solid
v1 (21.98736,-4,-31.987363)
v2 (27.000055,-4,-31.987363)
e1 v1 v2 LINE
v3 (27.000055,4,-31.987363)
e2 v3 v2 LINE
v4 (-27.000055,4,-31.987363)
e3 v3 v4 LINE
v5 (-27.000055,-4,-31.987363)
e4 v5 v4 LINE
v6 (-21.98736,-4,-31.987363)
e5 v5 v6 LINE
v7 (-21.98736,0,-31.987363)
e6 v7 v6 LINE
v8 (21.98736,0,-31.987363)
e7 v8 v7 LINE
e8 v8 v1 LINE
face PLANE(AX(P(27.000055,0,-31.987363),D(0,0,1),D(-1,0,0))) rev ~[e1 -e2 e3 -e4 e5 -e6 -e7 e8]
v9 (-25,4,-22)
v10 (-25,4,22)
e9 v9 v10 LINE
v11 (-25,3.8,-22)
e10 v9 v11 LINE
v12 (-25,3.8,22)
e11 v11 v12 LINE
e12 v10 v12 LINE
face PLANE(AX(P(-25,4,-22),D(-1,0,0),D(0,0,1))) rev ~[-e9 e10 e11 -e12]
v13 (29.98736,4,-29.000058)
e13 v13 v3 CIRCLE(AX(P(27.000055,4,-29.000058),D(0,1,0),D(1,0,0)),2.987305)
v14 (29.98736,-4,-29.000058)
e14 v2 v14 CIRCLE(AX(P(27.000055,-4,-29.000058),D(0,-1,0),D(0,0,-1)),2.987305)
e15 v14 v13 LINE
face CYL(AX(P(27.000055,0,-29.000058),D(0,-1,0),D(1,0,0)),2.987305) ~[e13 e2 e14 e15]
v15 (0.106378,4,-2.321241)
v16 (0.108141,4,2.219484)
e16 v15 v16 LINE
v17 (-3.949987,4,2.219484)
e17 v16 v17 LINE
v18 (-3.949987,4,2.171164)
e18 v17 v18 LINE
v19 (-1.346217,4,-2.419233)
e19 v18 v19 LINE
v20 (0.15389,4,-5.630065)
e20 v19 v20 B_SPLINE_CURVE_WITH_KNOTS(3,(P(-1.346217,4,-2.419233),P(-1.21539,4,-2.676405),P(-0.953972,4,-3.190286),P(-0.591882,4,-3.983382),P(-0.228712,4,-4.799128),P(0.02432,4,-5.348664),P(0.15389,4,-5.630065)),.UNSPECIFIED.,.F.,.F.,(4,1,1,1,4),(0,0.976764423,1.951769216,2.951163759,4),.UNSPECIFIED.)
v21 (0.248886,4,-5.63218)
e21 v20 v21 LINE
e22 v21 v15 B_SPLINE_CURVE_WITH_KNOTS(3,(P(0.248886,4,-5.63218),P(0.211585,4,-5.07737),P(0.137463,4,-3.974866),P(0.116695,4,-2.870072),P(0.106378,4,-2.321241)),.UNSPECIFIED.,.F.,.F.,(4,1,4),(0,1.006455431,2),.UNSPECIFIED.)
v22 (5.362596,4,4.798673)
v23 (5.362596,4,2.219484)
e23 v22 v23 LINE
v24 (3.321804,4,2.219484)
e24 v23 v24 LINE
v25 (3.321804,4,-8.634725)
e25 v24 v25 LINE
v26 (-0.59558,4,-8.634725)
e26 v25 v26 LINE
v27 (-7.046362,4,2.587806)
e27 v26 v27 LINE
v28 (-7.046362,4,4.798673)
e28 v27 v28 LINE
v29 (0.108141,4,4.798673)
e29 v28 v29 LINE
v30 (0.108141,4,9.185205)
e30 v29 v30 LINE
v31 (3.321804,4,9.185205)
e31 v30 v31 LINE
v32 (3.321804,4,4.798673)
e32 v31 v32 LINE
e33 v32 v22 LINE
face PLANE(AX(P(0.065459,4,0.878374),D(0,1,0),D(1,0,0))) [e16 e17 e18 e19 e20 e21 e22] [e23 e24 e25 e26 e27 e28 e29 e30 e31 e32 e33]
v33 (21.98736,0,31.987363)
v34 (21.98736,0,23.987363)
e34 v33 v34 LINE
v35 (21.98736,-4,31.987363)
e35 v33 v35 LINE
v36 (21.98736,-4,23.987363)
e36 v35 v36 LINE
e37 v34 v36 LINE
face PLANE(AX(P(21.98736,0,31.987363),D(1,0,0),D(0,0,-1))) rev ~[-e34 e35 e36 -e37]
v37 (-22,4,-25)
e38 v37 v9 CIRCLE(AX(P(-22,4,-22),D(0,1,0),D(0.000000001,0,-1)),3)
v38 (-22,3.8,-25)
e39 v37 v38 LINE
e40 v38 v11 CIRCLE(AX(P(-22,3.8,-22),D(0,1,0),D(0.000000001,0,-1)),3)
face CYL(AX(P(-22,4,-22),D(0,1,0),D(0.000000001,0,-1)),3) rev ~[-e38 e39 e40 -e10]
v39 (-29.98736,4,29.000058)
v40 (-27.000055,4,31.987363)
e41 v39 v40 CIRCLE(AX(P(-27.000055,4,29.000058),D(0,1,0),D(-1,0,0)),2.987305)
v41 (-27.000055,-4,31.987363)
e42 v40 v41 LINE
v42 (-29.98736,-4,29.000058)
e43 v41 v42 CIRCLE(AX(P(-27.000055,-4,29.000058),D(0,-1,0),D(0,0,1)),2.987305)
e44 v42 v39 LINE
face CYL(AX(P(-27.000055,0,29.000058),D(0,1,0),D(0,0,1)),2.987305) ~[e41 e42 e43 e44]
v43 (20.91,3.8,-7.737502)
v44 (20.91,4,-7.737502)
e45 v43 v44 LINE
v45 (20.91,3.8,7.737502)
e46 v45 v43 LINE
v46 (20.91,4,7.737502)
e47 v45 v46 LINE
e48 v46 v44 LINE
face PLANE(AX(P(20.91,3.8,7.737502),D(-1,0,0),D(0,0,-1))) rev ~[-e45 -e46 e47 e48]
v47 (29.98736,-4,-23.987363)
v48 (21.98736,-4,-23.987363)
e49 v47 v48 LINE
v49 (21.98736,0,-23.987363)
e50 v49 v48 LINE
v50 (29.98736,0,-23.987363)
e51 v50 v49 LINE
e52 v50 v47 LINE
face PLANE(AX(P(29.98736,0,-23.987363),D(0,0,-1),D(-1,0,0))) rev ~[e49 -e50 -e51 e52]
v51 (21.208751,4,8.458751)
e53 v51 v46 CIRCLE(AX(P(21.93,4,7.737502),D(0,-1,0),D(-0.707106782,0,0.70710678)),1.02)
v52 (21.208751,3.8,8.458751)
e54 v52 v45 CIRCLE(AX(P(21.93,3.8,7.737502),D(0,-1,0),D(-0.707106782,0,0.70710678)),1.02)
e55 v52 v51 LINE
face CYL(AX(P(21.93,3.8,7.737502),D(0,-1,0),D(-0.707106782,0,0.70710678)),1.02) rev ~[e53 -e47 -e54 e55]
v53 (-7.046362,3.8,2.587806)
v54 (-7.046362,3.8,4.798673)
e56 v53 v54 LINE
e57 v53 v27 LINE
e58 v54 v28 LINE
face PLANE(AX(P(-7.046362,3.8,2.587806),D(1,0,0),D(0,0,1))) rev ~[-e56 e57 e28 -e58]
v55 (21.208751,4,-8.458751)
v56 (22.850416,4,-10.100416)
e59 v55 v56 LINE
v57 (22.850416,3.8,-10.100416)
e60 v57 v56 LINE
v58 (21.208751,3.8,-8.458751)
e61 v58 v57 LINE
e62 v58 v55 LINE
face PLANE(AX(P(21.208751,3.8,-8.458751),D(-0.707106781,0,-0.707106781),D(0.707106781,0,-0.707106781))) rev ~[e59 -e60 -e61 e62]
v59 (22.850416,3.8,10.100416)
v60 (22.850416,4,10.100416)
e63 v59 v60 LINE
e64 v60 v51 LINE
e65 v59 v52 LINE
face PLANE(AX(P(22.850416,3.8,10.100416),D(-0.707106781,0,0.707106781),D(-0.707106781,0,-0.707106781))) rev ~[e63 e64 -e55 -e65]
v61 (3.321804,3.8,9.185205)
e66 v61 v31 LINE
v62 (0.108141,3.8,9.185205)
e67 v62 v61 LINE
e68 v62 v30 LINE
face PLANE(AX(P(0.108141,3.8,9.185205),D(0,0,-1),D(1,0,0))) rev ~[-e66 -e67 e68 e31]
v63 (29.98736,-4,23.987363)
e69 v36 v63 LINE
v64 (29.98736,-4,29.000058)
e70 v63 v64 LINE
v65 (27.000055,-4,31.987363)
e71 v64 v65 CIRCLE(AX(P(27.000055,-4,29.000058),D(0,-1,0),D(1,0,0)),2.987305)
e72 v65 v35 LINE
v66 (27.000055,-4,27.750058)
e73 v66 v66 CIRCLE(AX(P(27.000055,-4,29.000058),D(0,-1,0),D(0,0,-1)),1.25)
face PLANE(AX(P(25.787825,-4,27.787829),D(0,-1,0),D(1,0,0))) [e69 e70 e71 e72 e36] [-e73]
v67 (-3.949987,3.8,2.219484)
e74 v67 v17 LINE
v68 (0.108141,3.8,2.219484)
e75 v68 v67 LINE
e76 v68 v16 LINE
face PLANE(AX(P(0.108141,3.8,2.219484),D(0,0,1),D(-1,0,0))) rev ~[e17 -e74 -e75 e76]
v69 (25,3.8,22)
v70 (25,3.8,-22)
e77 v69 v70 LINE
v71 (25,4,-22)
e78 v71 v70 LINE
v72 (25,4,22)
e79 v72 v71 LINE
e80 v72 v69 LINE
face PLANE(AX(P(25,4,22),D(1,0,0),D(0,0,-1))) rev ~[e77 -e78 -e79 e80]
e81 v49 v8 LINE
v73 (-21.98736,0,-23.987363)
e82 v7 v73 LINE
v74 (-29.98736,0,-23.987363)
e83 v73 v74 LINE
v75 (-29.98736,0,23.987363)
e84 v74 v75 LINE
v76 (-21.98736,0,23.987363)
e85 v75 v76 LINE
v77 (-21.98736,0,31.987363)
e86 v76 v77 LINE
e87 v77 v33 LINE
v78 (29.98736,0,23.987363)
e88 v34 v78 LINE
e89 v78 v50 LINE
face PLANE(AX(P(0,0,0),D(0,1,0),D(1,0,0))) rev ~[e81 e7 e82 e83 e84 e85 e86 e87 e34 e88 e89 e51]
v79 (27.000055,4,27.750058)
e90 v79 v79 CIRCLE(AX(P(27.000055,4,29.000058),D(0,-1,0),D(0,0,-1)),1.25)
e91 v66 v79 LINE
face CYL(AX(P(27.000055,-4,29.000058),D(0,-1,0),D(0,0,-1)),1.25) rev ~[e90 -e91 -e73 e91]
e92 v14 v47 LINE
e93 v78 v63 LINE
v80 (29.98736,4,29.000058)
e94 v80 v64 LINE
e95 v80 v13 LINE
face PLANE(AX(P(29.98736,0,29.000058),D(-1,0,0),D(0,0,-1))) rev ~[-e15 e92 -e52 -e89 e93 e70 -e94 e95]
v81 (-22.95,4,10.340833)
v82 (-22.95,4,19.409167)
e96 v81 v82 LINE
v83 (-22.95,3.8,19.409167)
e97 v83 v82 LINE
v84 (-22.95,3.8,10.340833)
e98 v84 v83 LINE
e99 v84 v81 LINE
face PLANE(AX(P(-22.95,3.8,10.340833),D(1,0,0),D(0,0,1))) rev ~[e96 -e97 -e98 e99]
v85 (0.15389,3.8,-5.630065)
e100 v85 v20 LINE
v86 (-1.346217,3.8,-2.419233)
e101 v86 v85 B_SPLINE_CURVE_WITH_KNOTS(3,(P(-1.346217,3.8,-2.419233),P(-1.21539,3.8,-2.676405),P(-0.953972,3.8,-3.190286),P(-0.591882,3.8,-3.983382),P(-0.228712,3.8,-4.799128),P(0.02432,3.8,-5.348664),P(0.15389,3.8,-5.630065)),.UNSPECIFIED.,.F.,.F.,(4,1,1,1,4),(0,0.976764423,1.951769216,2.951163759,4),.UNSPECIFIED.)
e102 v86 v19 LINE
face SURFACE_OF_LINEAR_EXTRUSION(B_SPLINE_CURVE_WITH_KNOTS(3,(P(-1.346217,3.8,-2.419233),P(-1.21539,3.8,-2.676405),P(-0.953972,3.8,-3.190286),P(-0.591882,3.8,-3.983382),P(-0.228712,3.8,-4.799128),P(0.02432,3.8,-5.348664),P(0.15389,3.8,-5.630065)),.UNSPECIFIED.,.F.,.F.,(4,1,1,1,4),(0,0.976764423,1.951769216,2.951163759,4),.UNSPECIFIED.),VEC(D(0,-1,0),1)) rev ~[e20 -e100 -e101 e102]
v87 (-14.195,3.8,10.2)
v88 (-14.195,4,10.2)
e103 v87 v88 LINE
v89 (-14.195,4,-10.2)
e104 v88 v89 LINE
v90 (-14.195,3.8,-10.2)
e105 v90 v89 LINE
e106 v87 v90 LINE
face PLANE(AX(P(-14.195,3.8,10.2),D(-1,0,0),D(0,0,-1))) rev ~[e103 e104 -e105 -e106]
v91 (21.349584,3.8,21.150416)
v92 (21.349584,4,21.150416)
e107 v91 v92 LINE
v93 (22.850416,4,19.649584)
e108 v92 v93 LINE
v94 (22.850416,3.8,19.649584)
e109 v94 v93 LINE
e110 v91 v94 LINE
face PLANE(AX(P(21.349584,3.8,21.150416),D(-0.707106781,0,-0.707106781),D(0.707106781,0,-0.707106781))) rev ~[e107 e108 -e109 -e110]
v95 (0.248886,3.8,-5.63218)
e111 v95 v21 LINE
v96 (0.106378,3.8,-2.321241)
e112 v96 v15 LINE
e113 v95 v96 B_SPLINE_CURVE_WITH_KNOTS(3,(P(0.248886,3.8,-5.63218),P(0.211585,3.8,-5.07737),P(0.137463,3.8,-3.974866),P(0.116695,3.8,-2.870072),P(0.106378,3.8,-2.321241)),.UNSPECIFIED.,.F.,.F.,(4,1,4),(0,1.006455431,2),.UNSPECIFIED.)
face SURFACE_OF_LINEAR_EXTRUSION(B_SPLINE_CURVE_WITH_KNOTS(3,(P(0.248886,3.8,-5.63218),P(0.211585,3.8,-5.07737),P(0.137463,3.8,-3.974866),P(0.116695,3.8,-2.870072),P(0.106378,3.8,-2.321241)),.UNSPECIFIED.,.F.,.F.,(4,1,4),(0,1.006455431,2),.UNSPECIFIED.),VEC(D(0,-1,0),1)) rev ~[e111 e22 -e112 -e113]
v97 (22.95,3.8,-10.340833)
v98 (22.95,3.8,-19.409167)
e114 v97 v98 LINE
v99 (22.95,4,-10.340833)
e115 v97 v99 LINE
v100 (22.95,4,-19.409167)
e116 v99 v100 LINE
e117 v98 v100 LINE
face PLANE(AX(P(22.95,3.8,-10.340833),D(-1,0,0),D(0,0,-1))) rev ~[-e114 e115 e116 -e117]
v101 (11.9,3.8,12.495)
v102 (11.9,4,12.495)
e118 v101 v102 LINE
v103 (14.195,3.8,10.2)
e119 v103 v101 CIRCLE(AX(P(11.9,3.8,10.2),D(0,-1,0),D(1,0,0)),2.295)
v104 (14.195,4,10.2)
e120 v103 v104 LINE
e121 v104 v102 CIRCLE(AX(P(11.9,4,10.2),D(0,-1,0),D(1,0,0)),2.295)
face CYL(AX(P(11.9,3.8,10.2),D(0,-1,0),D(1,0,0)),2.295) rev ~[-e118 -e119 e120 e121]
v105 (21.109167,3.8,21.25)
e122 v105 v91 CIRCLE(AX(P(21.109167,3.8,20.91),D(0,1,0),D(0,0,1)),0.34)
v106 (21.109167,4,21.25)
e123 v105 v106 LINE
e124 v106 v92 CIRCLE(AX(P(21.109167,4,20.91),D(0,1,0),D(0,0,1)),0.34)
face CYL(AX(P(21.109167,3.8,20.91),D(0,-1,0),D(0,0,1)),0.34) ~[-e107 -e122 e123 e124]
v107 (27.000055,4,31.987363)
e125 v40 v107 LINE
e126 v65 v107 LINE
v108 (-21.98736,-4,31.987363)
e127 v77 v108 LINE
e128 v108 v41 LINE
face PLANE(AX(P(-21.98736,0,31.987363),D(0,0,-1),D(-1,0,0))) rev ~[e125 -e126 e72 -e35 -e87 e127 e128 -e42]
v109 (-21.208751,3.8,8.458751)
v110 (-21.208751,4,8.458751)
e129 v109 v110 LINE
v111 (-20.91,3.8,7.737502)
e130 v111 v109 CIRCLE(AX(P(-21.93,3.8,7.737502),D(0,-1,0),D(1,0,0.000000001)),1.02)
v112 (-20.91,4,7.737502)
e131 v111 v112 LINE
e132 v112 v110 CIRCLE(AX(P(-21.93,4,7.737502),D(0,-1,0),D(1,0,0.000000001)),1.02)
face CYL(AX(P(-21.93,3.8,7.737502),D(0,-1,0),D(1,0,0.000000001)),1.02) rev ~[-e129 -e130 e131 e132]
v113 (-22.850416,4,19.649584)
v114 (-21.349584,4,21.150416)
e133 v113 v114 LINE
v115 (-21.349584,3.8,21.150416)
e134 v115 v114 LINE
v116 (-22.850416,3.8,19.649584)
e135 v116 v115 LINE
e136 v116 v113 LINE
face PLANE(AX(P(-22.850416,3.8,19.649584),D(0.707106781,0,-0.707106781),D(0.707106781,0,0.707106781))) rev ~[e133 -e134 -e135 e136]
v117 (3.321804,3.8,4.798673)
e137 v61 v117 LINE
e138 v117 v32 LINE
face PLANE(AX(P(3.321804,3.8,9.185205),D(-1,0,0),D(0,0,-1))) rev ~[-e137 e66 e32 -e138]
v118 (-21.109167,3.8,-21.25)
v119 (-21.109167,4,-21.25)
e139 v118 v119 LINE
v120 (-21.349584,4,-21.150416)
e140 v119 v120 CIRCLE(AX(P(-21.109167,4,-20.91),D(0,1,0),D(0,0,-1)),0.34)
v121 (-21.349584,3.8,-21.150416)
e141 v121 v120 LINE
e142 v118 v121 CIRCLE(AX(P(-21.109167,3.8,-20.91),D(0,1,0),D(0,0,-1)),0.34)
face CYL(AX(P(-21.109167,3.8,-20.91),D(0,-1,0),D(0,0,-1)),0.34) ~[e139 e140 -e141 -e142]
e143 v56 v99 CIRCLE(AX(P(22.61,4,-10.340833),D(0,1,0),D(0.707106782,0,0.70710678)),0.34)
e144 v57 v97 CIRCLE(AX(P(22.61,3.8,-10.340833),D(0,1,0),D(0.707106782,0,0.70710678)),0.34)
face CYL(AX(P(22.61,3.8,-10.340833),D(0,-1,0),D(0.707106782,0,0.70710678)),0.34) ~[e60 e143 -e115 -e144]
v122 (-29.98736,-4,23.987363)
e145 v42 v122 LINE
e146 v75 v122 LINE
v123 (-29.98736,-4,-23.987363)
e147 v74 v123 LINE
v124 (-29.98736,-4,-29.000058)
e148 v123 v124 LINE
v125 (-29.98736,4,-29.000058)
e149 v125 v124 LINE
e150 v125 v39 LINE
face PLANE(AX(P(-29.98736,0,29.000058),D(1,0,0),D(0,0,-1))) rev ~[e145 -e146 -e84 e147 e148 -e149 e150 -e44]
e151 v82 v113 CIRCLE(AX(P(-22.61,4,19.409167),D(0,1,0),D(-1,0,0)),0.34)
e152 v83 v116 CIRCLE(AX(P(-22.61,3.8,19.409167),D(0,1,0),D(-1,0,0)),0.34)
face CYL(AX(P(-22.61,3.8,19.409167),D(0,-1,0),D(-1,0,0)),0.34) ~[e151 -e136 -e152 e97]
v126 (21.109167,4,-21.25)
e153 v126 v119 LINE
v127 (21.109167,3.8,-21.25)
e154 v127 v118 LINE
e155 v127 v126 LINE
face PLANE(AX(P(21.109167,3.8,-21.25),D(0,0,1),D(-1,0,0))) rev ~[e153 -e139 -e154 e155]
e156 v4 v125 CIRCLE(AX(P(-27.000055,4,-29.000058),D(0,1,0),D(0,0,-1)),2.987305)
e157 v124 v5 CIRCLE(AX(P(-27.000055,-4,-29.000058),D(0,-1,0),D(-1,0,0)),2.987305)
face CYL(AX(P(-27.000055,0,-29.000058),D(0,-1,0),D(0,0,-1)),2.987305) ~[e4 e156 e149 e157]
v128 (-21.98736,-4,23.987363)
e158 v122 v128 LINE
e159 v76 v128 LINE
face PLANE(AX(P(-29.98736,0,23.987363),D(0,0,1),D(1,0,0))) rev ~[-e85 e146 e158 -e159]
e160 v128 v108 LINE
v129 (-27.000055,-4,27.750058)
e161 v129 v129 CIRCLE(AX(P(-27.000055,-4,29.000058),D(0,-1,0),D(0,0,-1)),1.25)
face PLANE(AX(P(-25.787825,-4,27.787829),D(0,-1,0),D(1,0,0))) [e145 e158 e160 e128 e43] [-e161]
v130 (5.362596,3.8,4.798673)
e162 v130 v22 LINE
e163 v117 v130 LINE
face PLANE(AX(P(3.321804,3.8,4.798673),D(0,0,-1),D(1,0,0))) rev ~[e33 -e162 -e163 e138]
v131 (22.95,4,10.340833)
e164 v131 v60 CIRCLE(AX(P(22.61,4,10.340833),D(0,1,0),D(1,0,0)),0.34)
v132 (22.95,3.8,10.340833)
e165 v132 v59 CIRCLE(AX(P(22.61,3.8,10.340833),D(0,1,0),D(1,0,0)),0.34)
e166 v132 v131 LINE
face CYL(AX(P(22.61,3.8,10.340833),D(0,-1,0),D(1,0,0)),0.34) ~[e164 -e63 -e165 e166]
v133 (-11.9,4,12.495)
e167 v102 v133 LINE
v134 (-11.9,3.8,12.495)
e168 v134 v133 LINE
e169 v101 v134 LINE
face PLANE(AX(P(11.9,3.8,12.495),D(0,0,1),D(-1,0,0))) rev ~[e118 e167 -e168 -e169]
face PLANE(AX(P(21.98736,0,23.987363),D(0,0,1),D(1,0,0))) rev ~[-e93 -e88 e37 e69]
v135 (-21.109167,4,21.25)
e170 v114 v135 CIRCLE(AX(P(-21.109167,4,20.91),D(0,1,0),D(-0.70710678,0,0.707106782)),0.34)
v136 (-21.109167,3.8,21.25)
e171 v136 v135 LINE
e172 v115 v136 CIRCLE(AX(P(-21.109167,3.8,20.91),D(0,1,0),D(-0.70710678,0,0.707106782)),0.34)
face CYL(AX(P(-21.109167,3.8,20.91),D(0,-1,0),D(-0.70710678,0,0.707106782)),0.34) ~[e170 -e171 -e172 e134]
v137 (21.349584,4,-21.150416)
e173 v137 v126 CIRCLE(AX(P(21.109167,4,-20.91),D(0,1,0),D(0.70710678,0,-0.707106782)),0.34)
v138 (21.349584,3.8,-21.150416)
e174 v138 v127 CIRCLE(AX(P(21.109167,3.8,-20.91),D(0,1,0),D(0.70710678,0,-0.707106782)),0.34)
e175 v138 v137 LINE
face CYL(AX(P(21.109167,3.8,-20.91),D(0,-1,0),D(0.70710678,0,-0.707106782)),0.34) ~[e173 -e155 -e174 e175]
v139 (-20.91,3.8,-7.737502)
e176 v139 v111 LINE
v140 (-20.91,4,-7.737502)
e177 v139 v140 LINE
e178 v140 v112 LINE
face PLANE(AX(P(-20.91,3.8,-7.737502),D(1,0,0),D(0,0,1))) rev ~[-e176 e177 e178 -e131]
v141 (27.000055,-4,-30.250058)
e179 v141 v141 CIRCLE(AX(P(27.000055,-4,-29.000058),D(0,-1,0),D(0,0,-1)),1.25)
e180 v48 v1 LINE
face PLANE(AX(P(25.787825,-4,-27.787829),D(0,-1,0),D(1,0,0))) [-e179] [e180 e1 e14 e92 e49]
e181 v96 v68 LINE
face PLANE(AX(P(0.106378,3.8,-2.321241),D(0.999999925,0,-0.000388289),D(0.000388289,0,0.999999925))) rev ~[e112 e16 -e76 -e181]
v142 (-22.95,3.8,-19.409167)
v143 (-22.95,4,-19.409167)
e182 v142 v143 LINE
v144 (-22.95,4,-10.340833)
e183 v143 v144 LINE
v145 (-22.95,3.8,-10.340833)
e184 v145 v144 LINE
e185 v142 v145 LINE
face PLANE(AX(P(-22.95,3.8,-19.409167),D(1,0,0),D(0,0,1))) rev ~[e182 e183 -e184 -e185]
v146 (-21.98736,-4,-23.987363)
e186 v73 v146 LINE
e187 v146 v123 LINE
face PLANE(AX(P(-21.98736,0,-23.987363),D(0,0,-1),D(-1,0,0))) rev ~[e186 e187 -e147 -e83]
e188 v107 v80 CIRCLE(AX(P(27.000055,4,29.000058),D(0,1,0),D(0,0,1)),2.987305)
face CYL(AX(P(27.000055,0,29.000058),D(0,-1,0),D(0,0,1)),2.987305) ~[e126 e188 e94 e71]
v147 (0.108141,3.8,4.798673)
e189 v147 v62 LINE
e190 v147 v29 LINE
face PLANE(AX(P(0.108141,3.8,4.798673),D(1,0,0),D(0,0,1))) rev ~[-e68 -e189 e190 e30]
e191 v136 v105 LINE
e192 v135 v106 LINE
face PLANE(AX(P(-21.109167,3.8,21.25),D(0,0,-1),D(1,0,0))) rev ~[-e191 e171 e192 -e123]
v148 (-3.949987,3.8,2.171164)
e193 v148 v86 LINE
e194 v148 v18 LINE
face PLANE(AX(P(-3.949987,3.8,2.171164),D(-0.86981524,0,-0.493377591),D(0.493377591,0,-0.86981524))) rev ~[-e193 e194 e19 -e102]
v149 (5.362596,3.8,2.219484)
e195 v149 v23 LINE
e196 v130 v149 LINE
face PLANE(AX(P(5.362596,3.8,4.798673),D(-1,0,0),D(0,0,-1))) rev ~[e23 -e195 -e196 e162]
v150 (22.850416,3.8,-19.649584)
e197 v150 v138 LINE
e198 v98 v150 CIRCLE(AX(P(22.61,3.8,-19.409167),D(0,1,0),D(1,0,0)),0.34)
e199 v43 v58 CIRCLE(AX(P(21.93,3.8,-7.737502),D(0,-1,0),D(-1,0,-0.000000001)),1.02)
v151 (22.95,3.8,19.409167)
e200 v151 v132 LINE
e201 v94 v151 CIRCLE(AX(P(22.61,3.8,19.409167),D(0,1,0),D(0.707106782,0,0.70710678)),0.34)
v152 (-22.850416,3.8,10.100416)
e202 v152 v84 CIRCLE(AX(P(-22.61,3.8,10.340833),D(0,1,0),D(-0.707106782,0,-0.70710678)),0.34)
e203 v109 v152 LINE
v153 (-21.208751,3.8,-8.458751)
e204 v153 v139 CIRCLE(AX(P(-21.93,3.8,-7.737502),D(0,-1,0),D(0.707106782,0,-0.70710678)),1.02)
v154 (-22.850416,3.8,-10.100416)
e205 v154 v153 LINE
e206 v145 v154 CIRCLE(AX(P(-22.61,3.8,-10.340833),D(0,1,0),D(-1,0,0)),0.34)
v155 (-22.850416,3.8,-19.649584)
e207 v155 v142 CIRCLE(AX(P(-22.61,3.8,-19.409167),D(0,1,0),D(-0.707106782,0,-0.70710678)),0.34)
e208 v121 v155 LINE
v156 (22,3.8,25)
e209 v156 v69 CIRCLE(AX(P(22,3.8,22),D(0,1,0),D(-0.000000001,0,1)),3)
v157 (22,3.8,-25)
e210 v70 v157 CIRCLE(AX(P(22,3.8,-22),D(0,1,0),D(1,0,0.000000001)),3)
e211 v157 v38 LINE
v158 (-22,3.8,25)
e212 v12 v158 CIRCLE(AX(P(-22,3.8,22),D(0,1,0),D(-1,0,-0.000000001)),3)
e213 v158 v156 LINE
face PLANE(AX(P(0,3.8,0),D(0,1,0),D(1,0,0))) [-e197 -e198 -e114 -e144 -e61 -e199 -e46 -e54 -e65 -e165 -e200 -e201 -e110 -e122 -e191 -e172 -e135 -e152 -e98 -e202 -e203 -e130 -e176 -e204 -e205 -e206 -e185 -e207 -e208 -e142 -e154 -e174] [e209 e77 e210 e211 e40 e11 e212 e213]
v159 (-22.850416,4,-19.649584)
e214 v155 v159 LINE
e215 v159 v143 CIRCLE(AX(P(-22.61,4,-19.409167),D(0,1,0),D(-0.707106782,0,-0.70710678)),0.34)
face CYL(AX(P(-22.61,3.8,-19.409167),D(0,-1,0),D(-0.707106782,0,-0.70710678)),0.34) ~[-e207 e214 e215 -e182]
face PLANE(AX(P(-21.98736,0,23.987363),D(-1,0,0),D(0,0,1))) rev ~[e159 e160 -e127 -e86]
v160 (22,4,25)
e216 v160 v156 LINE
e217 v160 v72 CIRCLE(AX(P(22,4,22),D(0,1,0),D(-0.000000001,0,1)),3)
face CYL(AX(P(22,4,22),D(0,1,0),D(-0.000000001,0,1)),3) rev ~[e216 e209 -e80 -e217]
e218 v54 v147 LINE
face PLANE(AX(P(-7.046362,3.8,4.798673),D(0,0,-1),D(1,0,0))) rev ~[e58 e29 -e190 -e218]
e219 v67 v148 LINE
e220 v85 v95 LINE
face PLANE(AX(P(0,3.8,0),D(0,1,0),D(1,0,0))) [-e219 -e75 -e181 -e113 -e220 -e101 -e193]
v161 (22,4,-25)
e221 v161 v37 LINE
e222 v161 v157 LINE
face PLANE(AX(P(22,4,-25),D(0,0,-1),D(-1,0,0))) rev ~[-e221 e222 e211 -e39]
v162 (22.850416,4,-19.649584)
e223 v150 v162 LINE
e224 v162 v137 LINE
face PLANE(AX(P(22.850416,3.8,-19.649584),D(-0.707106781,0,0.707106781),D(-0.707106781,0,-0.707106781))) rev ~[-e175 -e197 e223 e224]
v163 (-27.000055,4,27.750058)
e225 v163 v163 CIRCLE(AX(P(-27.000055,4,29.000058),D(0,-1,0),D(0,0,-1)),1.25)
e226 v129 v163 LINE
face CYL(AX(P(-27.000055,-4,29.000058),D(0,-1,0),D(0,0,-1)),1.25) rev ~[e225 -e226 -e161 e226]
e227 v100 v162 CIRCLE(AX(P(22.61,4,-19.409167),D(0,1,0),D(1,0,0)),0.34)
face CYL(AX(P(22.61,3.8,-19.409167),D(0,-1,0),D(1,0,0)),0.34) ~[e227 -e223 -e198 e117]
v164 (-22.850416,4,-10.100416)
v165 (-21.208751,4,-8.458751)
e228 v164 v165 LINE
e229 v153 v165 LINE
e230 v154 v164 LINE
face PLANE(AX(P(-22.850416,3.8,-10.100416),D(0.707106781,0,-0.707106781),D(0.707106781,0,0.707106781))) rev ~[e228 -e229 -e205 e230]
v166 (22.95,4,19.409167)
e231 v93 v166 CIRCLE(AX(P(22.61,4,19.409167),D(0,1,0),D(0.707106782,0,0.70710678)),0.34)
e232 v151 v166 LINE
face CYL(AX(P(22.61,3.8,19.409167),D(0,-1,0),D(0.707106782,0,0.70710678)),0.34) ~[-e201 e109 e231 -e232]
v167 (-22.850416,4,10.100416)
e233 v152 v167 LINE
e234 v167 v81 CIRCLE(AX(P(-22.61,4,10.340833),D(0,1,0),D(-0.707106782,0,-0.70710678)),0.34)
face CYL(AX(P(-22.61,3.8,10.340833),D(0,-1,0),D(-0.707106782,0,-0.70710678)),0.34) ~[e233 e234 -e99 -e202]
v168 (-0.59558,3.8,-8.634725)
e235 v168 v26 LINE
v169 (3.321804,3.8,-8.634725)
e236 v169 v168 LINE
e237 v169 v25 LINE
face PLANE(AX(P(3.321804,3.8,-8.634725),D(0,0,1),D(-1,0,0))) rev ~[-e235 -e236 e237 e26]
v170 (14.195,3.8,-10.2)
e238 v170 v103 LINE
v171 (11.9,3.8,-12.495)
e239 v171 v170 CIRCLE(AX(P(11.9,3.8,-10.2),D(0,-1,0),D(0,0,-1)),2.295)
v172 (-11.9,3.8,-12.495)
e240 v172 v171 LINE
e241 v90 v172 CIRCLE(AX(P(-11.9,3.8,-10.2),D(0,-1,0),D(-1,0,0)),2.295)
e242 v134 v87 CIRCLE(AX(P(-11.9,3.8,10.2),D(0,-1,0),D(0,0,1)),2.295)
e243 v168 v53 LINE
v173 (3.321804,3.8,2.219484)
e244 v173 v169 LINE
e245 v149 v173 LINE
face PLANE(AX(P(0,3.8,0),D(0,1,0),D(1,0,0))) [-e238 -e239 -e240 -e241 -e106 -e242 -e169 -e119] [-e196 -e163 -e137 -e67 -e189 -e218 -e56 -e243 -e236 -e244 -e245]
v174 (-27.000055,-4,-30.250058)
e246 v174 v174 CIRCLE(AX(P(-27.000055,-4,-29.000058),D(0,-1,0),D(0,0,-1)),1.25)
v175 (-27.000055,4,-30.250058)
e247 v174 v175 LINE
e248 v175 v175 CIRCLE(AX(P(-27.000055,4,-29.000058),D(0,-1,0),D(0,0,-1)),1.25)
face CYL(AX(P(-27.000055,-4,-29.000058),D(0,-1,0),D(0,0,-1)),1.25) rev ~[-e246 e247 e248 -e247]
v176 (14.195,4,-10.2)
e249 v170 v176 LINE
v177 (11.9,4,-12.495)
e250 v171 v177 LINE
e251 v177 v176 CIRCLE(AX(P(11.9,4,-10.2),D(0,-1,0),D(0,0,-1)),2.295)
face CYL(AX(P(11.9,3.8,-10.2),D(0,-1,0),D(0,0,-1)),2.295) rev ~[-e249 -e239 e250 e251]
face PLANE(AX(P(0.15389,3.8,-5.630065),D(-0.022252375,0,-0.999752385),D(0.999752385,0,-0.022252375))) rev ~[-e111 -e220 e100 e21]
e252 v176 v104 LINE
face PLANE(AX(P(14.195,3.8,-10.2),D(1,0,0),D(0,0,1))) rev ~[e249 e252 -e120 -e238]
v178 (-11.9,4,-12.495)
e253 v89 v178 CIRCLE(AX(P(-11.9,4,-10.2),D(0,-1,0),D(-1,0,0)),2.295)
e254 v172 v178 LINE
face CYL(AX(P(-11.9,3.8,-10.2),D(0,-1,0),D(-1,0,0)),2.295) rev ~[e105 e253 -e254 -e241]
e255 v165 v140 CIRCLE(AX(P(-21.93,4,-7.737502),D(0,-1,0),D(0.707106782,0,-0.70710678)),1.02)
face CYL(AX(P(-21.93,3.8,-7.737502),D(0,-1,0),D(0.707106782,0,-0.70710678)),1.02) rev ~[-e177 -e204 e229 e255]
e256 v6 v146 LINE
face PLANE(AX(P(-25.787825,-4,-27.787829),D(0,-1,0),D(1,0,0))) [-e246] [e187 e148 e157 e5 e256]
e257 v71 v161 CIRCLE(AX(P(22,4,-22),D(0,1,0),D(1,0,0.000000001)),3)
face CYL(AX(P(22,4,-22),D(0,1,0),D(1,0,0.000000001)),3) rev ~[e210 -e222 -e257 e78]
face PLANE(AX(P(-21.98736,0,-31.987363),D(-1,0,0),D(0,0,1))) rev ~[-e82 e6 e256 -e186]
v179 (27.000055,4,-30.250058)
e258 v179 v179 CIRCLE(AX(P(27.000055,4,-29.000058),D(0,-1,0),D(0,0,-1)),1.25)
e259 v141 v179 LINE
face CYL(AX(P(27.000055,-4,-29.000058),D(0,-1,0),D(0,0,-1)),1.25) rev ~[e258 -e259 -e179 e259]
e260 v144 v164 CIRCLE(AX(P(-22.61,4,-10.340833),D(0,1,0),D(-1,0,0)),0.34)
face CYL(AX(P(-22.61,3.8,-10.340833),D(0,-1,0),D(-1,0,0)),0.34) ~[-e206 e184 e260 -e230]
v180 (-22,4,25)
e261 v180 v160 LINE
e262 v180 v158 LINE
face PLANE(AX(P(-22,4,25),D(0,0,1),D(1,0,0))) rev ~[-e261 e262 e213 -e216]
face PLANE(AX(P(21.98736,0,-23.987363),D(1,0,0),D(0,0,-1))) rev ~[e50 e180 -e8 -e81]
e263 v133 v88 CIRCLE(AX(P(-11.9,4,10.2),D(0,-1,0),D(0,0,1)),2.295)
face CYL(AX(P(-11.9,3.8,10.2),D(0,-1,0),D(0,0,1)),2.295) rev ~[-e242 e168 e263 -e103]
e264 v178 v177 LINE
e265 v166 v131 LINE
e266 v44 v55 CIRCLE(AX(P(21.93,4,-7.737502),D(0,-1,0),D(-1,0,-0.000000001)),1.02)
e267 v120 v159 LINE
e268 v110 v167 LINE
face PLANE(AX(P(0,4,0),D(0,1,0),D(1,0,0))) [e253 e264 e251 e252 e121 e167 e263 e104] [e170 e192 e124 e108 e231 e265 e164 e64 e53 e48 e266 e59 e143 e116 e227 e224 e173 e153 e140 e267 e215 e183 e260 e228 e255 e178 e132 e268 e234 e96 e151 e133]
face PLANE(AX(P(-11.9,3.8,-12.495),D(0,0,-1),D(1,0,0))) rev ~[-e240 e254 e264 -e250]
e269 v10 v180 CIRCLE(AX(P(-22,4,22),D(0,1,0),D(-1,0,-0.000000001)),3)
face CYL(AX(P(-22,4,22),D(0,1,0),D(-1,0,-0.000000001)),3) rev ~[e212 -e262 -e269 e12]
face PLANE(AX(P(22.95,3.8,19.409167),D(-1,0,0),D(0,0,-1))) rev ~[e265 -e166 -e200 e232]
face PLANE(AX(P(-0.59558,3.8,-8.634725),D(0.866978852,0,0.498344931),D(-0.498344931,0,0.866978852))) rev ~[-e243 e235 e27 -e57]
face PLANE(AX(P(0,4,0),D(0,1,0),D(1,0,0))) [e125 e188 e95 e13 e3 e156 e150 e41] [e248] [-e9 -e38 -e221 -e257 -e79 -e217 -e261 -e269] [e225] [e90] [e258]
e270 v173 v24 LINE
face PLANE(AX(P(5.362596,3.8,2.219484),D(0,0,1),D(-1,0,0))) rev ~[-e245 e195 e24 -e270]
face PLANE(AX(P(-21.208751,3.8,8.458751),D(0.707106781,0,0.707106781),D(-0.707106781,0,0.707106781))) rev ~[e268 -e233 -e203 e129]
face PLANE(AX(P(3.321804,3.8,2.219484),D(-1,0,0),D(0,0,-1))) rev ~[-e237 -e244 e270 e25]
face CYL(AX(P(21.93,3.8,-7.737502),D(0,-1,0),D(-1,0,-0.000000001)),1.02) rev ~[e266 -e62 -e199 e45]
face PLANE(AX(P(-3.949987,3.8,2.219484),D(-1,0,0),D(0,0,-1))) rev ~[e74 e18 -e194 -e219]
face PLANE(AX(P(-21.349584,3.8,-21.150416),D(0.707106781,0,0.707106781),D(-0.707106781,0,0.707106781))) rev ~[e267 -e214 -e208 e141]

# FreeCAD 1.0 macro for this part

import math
import FreeCAD as App
import Part
import Sketcher

V = App.Vector


def add_polygon(sketch, points):
    """Adds a closed chain of lines whose ends are joined by coincident constraints."""
    first, n = sketch.GeometryCount, len(points)
    for a, b in zip(points, points[1:] + points[:1]):
        sketch.addGeometry(Part.LineSegment(App.Vector(*a, 0), App.Vector(*b, 0)), False)
    for i in range(n):
        sketch.addConstraint(Sketcher.Constraint("Coincident", first + i, 2, first + (i + 1) % n, 1))

doc = App.newDocument("Part")
body = doc.addObject("PartDesign::Body", "Body")

# Sketch on XZ plane
sketch1 = body.newObject("Sketcher::SketchObject", "Sketch")
sketch1.AttachmentSupport = (doc.getObject("XZ_Plane"), [""])
sketch1.MapMode = "FlatFace"
sketch1.addGeometry([
    Part.LineSegment(V(-27, 32, 0), V(27, 32, 0)),  # 0
    Part.ArcOfCircle(Part.Circle(V(27, 29, 0), V(0, 0, 1), 3), math.radians(0), math.radians(90)),  # 1
    Part.LineSegment(V(30, 29, 0), V(30, -29, 0)),  # 2
    Part.ArcOfCircle(Part.Circle(V(27, -29, 0), V(0, 0, 1), 3), math.radians(-90), math.radians(0)),  # 3
    Part.LineSegment(V(27, -32, 0), V(-27, -32, 0)),  # 4
    Part.ArcOfCircle(Part.Circle(V(-27, -29, 0), V(0, 0, 1), 3), math.radians(180), math.radians(270)),  # 5
    Part.LineSegment(V(-30, -29, 0), V(-30, 29, 0)),  # 6
    Part.ArcOfCircle(Part.Circle(V(-27, 29, 0), V(0, 0, 1), 3), math.radians(90), math.radians(180)),  # 7
], False)
sketch1.addConstraint([
    Sketcher.Constraint("Tangent", 0, 2, 1, 2),
    Sketcher.Constraint("Tangent", 1, 1, 2, 1),
    Sketcher.Constraint("Tangent", 2, 2, 3, 2),
    Sketcher.Constraint("Tangent", 3, 1, 4, 1),
    Sketcher.Constraint("Tangent", 4, 2, 5, 2),
    Sketcher.Constraint("Tangent", 5, 1, 6, 1),
    Sketcher.Constraint("Tangent", 6, 2, 7, 2),
    Sketcher.Constraint("Tangent", 7, 1, 0, 1),
    Sketcher.Constraint("Horizontal", 0),
    Sketcher.Constraint("Vertical", 2),
    Sketcher.Constraint("Horizontal", 4),
    Sketcher.Constraint("Vertical", 6),
    Sketcher.Constraint("Equal", 1, 3),
    Sketcher.Constraint("Equal", 3, 5),
    Sketcher.Constraint("Equal", 5, 7),
    Sketcher.Constraint("Symmetric", 1, 3, 5, 3, -1, 1),
    Sketcher.Constraint("Radius", 1, 2.987305),
    Sketcher.Constraint("DistanceX", 0, 1, 0, 2, 54.000109),
    Sketcher.Constraint("DistanceY", 2, 2, 2, 1, 58.000117),
])
pad1 = body.newObject("PartDesign::Pad", "Pad")
pad1.Profile = sketch1
pad1.Length = 4
pad1.Reversed = True

# Sketch on XZ plane
sketch2 = body.newObject("Sketcher::SketchObject", "Sketch001")
sketch2.AttachmentSupport = (doc.getObject("XZ_Plane"), [""])
sketch2.MapMode = "FlatFace"
sketch2.addGeometry([
    Part.LineSegment(V(-22, 24, 0), V(-22, 32, 0)),  # 0
    Part.LineSegment(V(-22, 32, 0), V(-27, 32, 0)),  # 1
    Part.ArcOfCircle(Part.Circle(V(-27, 29, 0), V(0, 0, 1), 3), math.radians(90), math.radians(180)),  # 2
    Part.LineSegment(V(-30, 29, 0), V(-30, 24, 0)),  # 3
    Part.LineSegment(V(-30, 24, 0), V(-22, 24, 0)),  # 4
    Part.LineSegment(V(22, -24, 0), V(22, -32, 0)),  # 5
    Part.LineSegment(V(22, -32, 0), V(27, -32, 0)),  # 6
    Part.ArcOfCircle(Part.Circle(V(27, -29, 0), V(0, 0, 1), 3), math.radians(-90), math.radians(0)),  # 7
    Part.LineSegment(V(30, -29, 0), V(30, -24, 0)),  # 8
    Part.LineSegment(V(30, -24, 0), V(22, -24, 0)),  # 9
    Part.LineSegment(V(22, 24, 0), V(30, 24, 0)),  # 10
    Part.LineSegment(V(30, 24, 0), V(30, 29, 0)),  # 11
    Part.ArcOfCircle(Part.Circle(V(27, 29, 0), V(0, 0, 1), 3), math.radians(0), math.radians(90)),  # 12
    Part.LineSegment(V(27, 32, 0), V(22, 32, 0)),  # 13
    Part.LineSegment(V(22, 32, 0), V(22, 24, 0)),  # 14
    Part.LineSegment(V(-30, -24, 0), V(-30, -29, 0)),  # 15
    Part.ArcOfCircle(Part.Circle(V(-27, -29, 0), V(0, 0, 1), 3), math.radians(180), math.radians(270)),  # 16
    Part.LineSegment(V(-27, -32, 0), V(-22, -32, 0)),  # 17
    Part.LineSegment(V(-22, -32, 0), V(-22, -24, 0)),  # 18
    Part.LineSegment(V(-22, -24, 0), V(-30, -24, 0)),  # 19
], False)
sketch2.addConstraint([
    Sketcher.Constraint("Coincident", 0, 2, 1, 1),
    Sketcher.Constraint("Tangent", 1, 2, 2, 1),
    Sketcher.Constraint("Tangent", 2, 2, 3, 1),
    Sketcher.Constraint("Coincident", 3, 2, 4, 1),
    Sketcher.Constraint("Coincident", 4, 2, 0, 1),
    Sketcher.Constraint("Coincident", 5, 2, 6, 1),
    Sketcher.Constraint("Tangent", 6, 2, 7, 1),
    Sketcher.Constraint("Tangent", 7, 2, 8, 1),
    Sketcher.Constraint("Coincident", 8, 2, 9, 1),
    Sketcher.Constraint("Coincident", 9, 2, 5, 1),
    Sketcher.Constraint("Coincident", 10, 2, 11, 1),
    Sketcher.Constraint("Tangent", 11, 2, 12, 1),
    Sketcher.Constraint("Tangent", 12, 2, 13, 1),
    Sketcher.Constraint("Coincident", 13, 2, 14, 1),
    Sketcher.Constraint("Coincident", 14, 2, 10, 1),
    Sketcher.Constraint("Tangent", 15, 2, 16, 1),
    Sketcher.Constraint("Tangent", 16, 2, 17, 1),
    Sketcher.Constraint("Coincident", 17, 2, 18, 1),
    Sketcher.Constraint("Coincident", 18, 2, 19, 1),
    Sketcher.Constraint("Coincident", 19, 2, 15, 1),
    Sketcher.Constraint("Vertical", 0),
    Sketcher.Constraint("Horizontal", 1),
    Sketcher.Constraint("Vertical", 3),
    Sketcher.Constraint("Horizontal", 4),
    Sketcher.Constraint("Vertical", 5),
    Sketcher.Constraint("Horizontal", 6),
    Sketcher.Constraint("Vertical", 8),
    Sketcher.Constraint("Horizontal", 9),
    Sketcher.Constraint("Horizontal", 10),
    Sketcher.Constraint("Vertical", 11),
    Sketcher.Constraint("Horizontal", 13),
    Sketcher.Constraint("Vertical", 14),
    Sketcher.Constraint("Vertical", 15),
    Sketcher.Constraint("Horizontal", 17),
    Sketcher.Constraint("Vertical", 18),
    Sketcher.Constraint("Horizontal", 19),
    Sketcher.Constraint("Equal", 2, 7),
    Sketcher.Constraint("Equal", 7, 12),
    Sketcher.Constraint("Equal", 12, 16),
    Sketcher.Constraint("Symmetric", 2, 3, 7, 3, -1, 1),
    Sketcher.Constraint("Symmetric", 12, 3, 16, 3, -1, 1),
    Sketcher.Constraint("Symmetric", 4, 2, 9, 2, -1, 1),
    Sketcher.Constraint("Symmetric", 14, 2, 18, 2, -1, 1),
    Sketcher.Constraint("Symmetric", 2, 3, 12, 3, -2),
    Sketcher.Constraint("Symmetric", 4, 2, 14, 2, -2),
    Sketcher.Constraint("Equal", 19, 0),
    Sketcher.Constraint("DistanceX", 4, 1, 4, 2, 8.0),
    Sketcher.Constraint("Radius", 2, 2.987305),
    Sketcher.Constraint("DistanceY", -1, 1, 2, 3, 29.000058),
    Sketcher.Constraint("DistanceX", 0, 2, -1, 1, 21.98736),
])
pad2 = body.newObject("PartDesign::Pad", "Pad001")
pad2.Profile = sketch2
pad2.Length = 4

# Sketch on XZ plane
sketch3 = body.newObject("Sketcher::SketchObject", "Sketch002")
sketch3.AttachmentSupport = (doc.getObject("XZ_Plane"), [""])
sketch3.MapMode = "FlatFace"
sketch3.AttachmentOffset = App.Placement(V(0, 0, 4), App.Rotation())
sketch3.addGeometry([
    Part.Circle(V(-27, 29, 0), V(0, 0, 1), 1.2),
    Part.Circle(V(27, 29, 0), V(0, 0, 1), 1.2),
    Part.Circle(V(27, -29, 0), V(0, 0, 1), 1.2),
    Part.Circle(V(-27, -29, 0), V(0, 0, 1), 1.2),
], False)
sketch3.addConstraint([
    Sketcher.Constraint("Equal", 0, 1),
    Sketcher.Constraint("Equal", 1, 2),
    Sketcher.Constraint("Equal", 2, 3),
    Sketcher.Constraint("Symmetric", 0, 3, 2, 3, -1, 1),
    Sketcher.Constraint("Symmetric", 1, 3, 3, 3, -1, 1),
    Sketcher.Constraint("Symmetric", 0, 3, 1, 3, -2),
    Sketcher.Constraint("Diameter", 0, 2.5),
    Sketcher.Constraint("DistanceY", -1, 1, 0, 3, 29.000058),
    Sketcher.Constraint("DistanceX", 0, 3, 1, 3, 54.000109),
])
pocket1 = body.newObject("PartDesign::Pocket", "Pocket")
pocket1.Profile = sketch3
pocket1.Length = 15

# Sketch on XZ plane
sketch4 = body.newObject("Sketcher::SketchObject", "Sketch003")
sketch4.AttachmentSupport = (doc.getObject("XZ_Plane"), [""])
sketch4.MapMode = "FlatFace"
sketch4.AttachmentOffset = App.Placement(V(0, 0, -4), App.Rotation())
sketch4.addGeometry([
    Part.LineSegment(V(-22, 25, 0), V(22, 25, 0)),  # 0
    Part.ArcOfCircle(Part.Circle(V(22, 22, 0), V(0, 0, 1), 3), math.radians(0), math.radians(90)),  # 1
    Part.LineSegment(V(25, 22, 0), V(25, -22, 0)),  # 2
    Part.ArcOfCircle(Part.Circle(V(22, -22, 0), V(0, 0, 1), 3), math.radians(-90), math.radians(0)),  # 3
    Part.LineSegment(V(22, -25, 0), V(-22, -25, 0)),  # 4
    Part.ArcOfCircle(Part.Circle(V(-22, -22, 0), V(0, 0, 1), 3), math.radians(180), math.radians(270)),  # 5
    Part.LineSegment(V(-25, -22, 0), V(-25, 22, 0)),  # 6
    Part.ArcOfCircle(Part.Circle(V(-22, 22, 0), V(0, 0, 1), 3), math.radians(90), math.radians(180)),  # 7
], False)
sketch4.addConstraint([
    Sketcher.Constraint("Tangent", 0, 2, 1, 2),
    Sketcher.Constraint("Tangent", 1, 1, 2, 1),
    Sketcher.Constraint("Tangent", 2, 2, 3, 2),
    Sketcher.Constraint("Tangent", 3, 1, 4, 1),
    Sketcher.Constraint("Tangent", 4, 2, 5, 2),
    Sketcher.Constraint("Tangent", 5, 1, 6, 1),
    Sketcher.Constraint("Tangent", 6, 2, 7, 2),
    Sketcher.Constraint("Tangent", 7, 1, 0, 1),
    Sketcher.Constraint("Horizontal", 0),
    Sketcher.Constraint("Vertical", 2),
    Sketcher.Constraint("Horizontal", 4),
    Sketcher.Constraint("Vertical", 6),
    Sketcher.Constraint("Equal", 1, 3),
    Sketcher.Constraint("Equal", 3, 5),
    Sketcher.Constraint("Equal", 5, 7),
    Sketcher.Constraint("Symmetric", 1, 3, 5, 3, -1, 1),
    Sketcher.Constraint("Equal", 4, 2),
    Sketcher.Constraint("Radius", 1, 3.0),
    Sketcher.Constraint("DistanceX", 0, 1, 0, 2, 44.0),
])
pocket2 = body.newObject("PartDesign::Pocket", "Pocket001")
pocket2.Profile = sketch4
pocket2.Length = 0.2
pocket2.Reversed = True

# Sketch on XZ plane
sketch5 = body.newObject("Sketcher::SketchObject", "Sketch004")
sketch5.AttachmentSupport = (doc.getObject("XZ_Plane"), [""])
sketch5.MapMode = "FlatFace"
sketch5.AttachmentOffset = App.Placement(V(0, 0, -3.8), App.Rotation())
sketch5.addGeometry([
    Part.ArcOfCircle(Part.Circle(V(-21.93, -7.74, 0), V(0, 0, 1), 1.02), math.radians(-45), math.radians(0)),  # 0
    Part.LineSegment(V(-20.91, -7.74, 0), V(-20.91, 7.74, 0)),  # 1
    Part.ArcOfCircle(Part.Circle(V(-21.93, 7.74, 0), V(0, 0, 1), 1.02), math.radians(0), math.radians(45)),  # 2
    Part.LineSegment(V(-21.21, 8.46, 0), V(-22.85, 10.1, 0)),  # 3
    Part.ArcOfCircle(Part.Circle(V(-22.61, 10.34, 0), V(0, 0, 1), 0.34), math.radians(180), math.radians(225)),  # 4
    Part.LineSegment(V(-22.95, 10.34, 0), V(-22.95, 19.41, 0)),  # 5
    Part.ArcOfCircle(Part.Circle(V(-22.61, 19.41, 0), V(0, 0, 1), 0.34), math.radians(135), math.radians(180)),  # 6
    Part.LineSegment(V(-22.85, 19.65, 0), V(-21.35, 21.15, 0)),  # 7
    Part.ArcOfCircle(Part.Circle(V(-21.11, 20.91, 0), V(0, 0, 1), 0.34), math.radians(90), math.radians(135)),  # 8
    Part.LineSegment(V(-21.11, 21.25, 0), V(21.11, 21.25, 0)),  # 9
    Part.ArcOfCircle(Part.Circle(V(21.11, 20.91, 0), V(0, 0, 1), 0.34), math.radians(45), math.radians(90)),  # 10
    Part.LineSegment(V(21.35, 21.15, 0), V(22.85, 19.65, 0)),  # 11
    Part.ArcOfCircle(Part.Circle(V(22.61, 19.41, 0), V(0, 0, 1), 0.34), math.radians(0), math.radians(45)),  # 12
    Part.LineSegment(V(22.95, 19.41, 0), V(22.95, 10.34, 0)),  # 13
    Part.ArcOfCircle(Part.Circle(V(22.61, 10.34, 0), V(0, 0, 1), 0.34), math.radians(-45), math.radians(0)),  # 14
    Part.LineSegment(V(22.85, 10.1, 0), V(21.21, 8.46, 0)),  # 15
    Part.ArcOfCircle(Part.Circle(V(21.93, 7.74, 0), V(0, 0, 1), 1.02), math.radians(135), math.radians(180)),  # 16
    Part.LineSegment(V(20.91, 7.74, 0), V(20.91, -7.74, 0)),  # 17
    Part.ArcOfCircle(Part.Circle(V(21.93, -7.74, 0), V(0, 0, 1), 1.02), math.radians(-180), math.radians(-135)),  # 18
    Part.LineSegment(V(21.21, -8.46, 0), V(22.85, -10.1, 0)),  # 19
    Part.ArcOfCircle(Part.Circle(V(22.61, -10.34, 0), V(0, 0, 1), 0.34), math.radians(0), math.radians(45)),  # 20
    Part.LineSegment(V(22.95, -10.34, 0), V(22.95, -19.41, 0)),  # 21
    Part.ArcOfCircle(Part.Circle(V(22.61, -19.41, 0), V(0, 0, 1), 0.34), math.radians(-45), math.radians(0)),  # 22
    Part.LineSegment(V(22.85, -19.65, 0), V(21.35, -21.15, 0)),  # 23
    Part.ArcOfCircle(Part.Circle(V(21.11, -20.91, 0), V(0, 0, 1), 0.34), math.radians(-90), math.radians(-45)),  # 24
    Part.LineSegment(V(21.11, -21.25, 0), V(-21.11, -21.25, 0)),  # 25
    Part.ArcOfCircle(Part.Circle(V(-21.11, -20.91, 0), V(0, 0, 1), 0.34), math.radians(-135), math.radians(-90)),  # 26
    Part.LineSegment(V(-21.35, -21.15, 0), V(-22.85, -19.65, 0)),  # 27
    Part.ArcOfCircle(Part.Circle(V(-22.61, -19.41, 0), V(0, 0, 1), 0.34), math.radians(180), math.radians(225)),  # 28
    Part.LineSegment(V(-22.95, -19.41, 0), V(-22.95, -10.34, 0)),  # 29
    Part.ArcOfCircle(Part.Circle(V(-22.61, -10.34, 0), V(0, 0, 1), 0.34), math.radians(135), math.radians(180)),  # 30
    Part.LineSegment(V(-22.85, -10.1, 0), V(-21.21, -8.46, 0)),  # 31
    Part.Circle(V(-16.15, 17.77, 0), V(0, 0, 1), 1.46),  # 32
    Part.Circle(V(16.15, 17.77, 0), V(0, 0, 1), 1.46),  # 33
    Part.Circle(V(-16.15, -17.77, 0), V(0, 0, 1), 1.46),  # 34
    Part.ArcOfCircle(Part.Circle(V(11.9, 10.2, 0), V(0, 0, 1), 2.29), math.radians(0), math.radians(90)),  # 35
    Part.LineSegment(V(11.9, 12.49, 0), V(-11.9, 12.49, 0)),  # 36
    Part.ArcOfCircle(Part.Circle(V(-11.9, 10.2, 0), V(0, 0, 1), 2.29), math.radians(90), math.radians(180)),  # 37
    Part.LineSegment(V(-14.2, 10.2, 0), V(-14.2, -10.2, 0)),  # 38
    Part.ArcOfCircle(Part.Circle(V(-11.9, -10.2, 0), V(0, 0, 1), 2.29), math.radians(180), math.radians(270)),  # 39
    Part.LineSegment(V(-11.9, -12.49, 0), V(11.9, -12.49, 0)),  # 40
    Part.ArcOfCircle(Part.Circle(V(11.9, -10.2, 0), V(0, 0, 1), 2.29), math.radians(-90), math.radians(0)),  # 41
    Part.LineSegment(V(14.2, -10.2, 0), V(14.2, 10.2, 0)),  # 42
    Part.Circle(V(16.15, -17.77, 0), V(0, 0, 1), 1.46),  # 43
], False)
sketch5.addConstraint([
    Sketcher.Constraint("Tangent", 0, 2, 1, 1),
    Sketcher.Constraint("Tangent", 1, 2, 2, 1),
    Sketcher.Constraint("Tangent", 2, 2, 3, 1),
    Sketcher.Constraint("Tangent", 3, 2, 4, 2),
    Sketcher.Constraint("Tangent", 4, 1, 5, 1),
    Sketcher.Constraint("Tangent", 5, 2, 6, 2),
    Sketcher.Constraint("Tangent", 6, 1, 7, 1),
    Sketcher.Constraint("Tangent", 7, 2, 8, 2),
    Sketcher.Constraint("Tangent", 8, 1, 9, 1),
    Sketcher.Constraint("Tangent", 9, 2, 10, 2),
    Sketcher.Constraint("Tangent", 10, 1, 11, 1),
    Sketcher.Constraint("Tangent", 11, 2, 12, 2),
    Sketcher.Constraint("Tangent", 12, 1, 13, 1),
    Sketcher.Constraint("Tangent", 13, 2, 14, 2),
    Sketcher.Constraint("Tangent", 14, 1, 15, 1),
    Sketcher.Constraint("Tangent", 15, 2, 16, 1),
    Sketcher.Constraint("Tangent", 16, 2, 17, 1),
    Sketcher.Constraint("Tangent", 17, 2, 18, 1),
    Sketcher.Constraint("Tangent", 18, 2, 19, 1),
    Sketcher.Constraint("Tangent", 19, 2, 20, 2),
    Sketcher.Constraint("Tangent", 20, 1, 21, 1),
    Sketcher.Constraint("Tangent", 21, 2, 22, 2),
    Sketcher.Constraint("Tangent", 22, 1, 23, 1),
    Sketcher.Constraint("Tangent", 23, 2, 24, 2),
    Sketcher.Constraint("Tangent", 24, 1, 25, 1),
    Sketcher.Constraint("Tangent", 25, 2, 26, 2),
    Sketcher.Constraint("Tangent", 26, 1, 27, 1),
    Sketcher.Constraint("Tangent", 27, 2, 28, 2),
    Sketcher.Constraint("Tangent", 28, 1, 29, 1),
    Sketcher.Constraint("Tangent", 29, 2, 30, 2),
    Sketcher.Constraint("Tangent", 30, 1, 31, 1),
    Sketcher.Constraint("Tangent", 31, 2, 0, 1),
    Sketcher.Constraint("Tangent", 35, 2, 36, 1),
    Sketcher.Constraint("Tangent", 36, 2, 37, 1),
    Sketcher.Constraint("Tangent", 37, 2, 38, 1),
    Sketcher.Constraint("Tangent", 38, 2, 39, 1),
    Sketcher.Constraint("Tangent", 39, 2, 40, 1),
    Sketcher.Constraint("Tangent", 40, 2, 41, 1),
    Sketcher.Constraint("Tangent", 41, 2, 42, 1),
    Sketcher.Constraint("Tangent", 42, 2, 35, 1),
    Sketcher.Constraint("Vertical", 1),
    Sketcher.Constraint("Vertical", 5),
    Sketcher.Constraint("Horizontal", 9),
    Sketcher.Constraint("Vertical", 13),
    Sketcher.Constraint("Vertical", 17),
    Sketcher.Constraint("Vertical", 21),
    Sketcher.Constraint("Horizontal", 25),
    Sketcher.Constraint("Vertical", 29),
    Sketcher.Constraint("Horizontal", 36),
    Sketcher.Constraint("Vertical", 38),
    Sketcher.Constraint("Horizontal", 40),
    Sketcher.Constraint("Vertical", 42),
    Sketcher.Constraint("Equal", 0, 2),
    Sketcher.Constraint("Equal", 4, 6),
    Sketcher.Constraint("Equal", 6, 8),
    Sketcher.Constraint("Equal", 8, 10),
    Sketcher.Constraint("Equal", 10, 12),
    Sketcher.Constraint("Equal", 12, 14),
    Sketcher.Constraint("Equal", 2, 16),
    Sketcher.Constraint("Equal", 16, 18),
    Sketcher.Constraint("Equal", 14, 20),
    Sketcher.Constraint("Equal", 20, 22),
    Sketcher.Constraint("Equal", 22, 24),
    Sketcher.Constraint("Equal", 24, 26),
    Sketcher.Constraint("Equal", 26, 28),
    Sketcher.Constraint("Equal", 28, 30),
    Sketcher.Constraint("Equal", 32, 33),
    Sketcher.Constraint("Equal", 33, 34),
    Sketcher.Constraint("Equal", 35, 37),
    Sketcher.Constraint("Equal", 37, 39),
    Sketcher.Constraint("Equal", 39, 41),
    Sketcher.Constraint("Equal", 34, 43),
    Sketcher.Constraint("Symmetric", 0, 3, 16, 3, -1, 1),
    Sketcher.Constraint("Symmetric", 4, 3, 20, 3, -1, 1),
    Sketcher.Constraint("Symmetric", 8, 3, 24, 3, -1, 1),
    Sketcher.Constraint("Symmetric", 12, 3, 28, 3, -1, 1),
    Sketcher.Constraint("Symmetric", 33, 3, 34, 3, -1, 1),
    Sketcher.Constraint("Symmetric", 35, 3, 39, 3, -1, 1),
    Sketcher.Constraint("Symmetric", 32, 3, 43, 3, -1, 1),
    Sketcher.Constraint("Symmetric", 6, 3, 12, 3, -2),
    Sketcher.Constraint("Symmetric", 32, 3, 33, 3, -2),
    Sketcher.Constraint("Symmetric", 3, 2, 14, 1, -2),
    Sketcher.Constraint("Symmetric", 23, 2, 26, 1, -2),
    Sketcher.Constraint("Symmetric", 19, 2, 30, 1, -2),
    Sketcher.Constraint("Perpendicular", 3, 7),
    Sketcher.Constraint("Perpendicular", 7, 11),
    Sketcher.Constraint("Perpendicular", 11, 15),
    Sketcher.Constraint("Radius", 0, 1.02),
    Sketcher.Constraint("Radius", 4, 0.34),
    Sketcher.Constraint("Diameter", 32, 2.924),
    Sketcher.Constraint("DistanceX", 36, 2, 36, 1, 23.8),
    Sketcher.Constraint("DistanceY", 38, 2, 38, 1, 20.4),
    Sketcher.Constraint("Radius", 35, 2.295),
    Sketcher.Constraint("DistanceX", 0, 3, -1, 1, 21.93),
    Sketcher.Constraint("DistanceX", 4, 3, -1, 1, 22.61),
    Sketcher.Constraint("DistanceY", -1, 1, 8, 3, 20.91),
    Sketcher.Constraint("DistanceX", 32, 3, -1, 1, 16.15),
    Sketcher.Constraint("DistanceY", -1, 1, 32, 3, 17.765),
    Sketcher.Constraint("DistanceX", 9, 1, 9, 2, 42.218335),
    Sketcher.Constraint("DistanceY", 1, 1, 1, 2, 15.475004),
])
pad3 = body.newObject("PartDesign::Pad", "Pad002")
pad3.Profile = sketch5
pad3.Length = 0.2
pad3.Reversed = True

# Sketch on XZ plane
sketch6 = body.newObject("Sketcher::SketchObject", "Sketch005")
sketch6.AttachmentSupport = (doc.getObject("XZ_Plane"), [""])
sketch6.MapMode = "FlatFace"
sketch6.AttachmentOffset = App.Placement(V(0, 0, -3.8), App.Rotation())
add_polygon(sketch6, [(5.362596, 4.798673), (5.362596, 2.219484), (3.321804, 2.219484), (3.321804, -8.634725), (-0.59558, -8.634725), (-7.046362, 2.587806), (-7.046362, 4.798673), (0.108141, 4.798673), (0.108141, 9.185205), (3.321804, 9.185205), (3.321804, 4.798673)])  # lines 0-10
sketch6.addGeometry(Part.LineSegment(V(-3.949987, 2.171164, 0), V(-1.346217, -2.419233, 0)), False)  # 11
sketch6.addGeometry(Part.BSplineCurve([V(-1.346217, -2.419233, 0), V(-1.21539, -2.676405, 0), V(-0.953972, -3.190286, 0), V(-0.591882, -3.983382, 0), V(-0.228712, -4.799128, 0), V(0.02432, -5.348664, 0), V(0.15389, -5.630065, 0)], [4, 1, 1, 1, 4], [0, 0.976764423, 1.951769216, 2.951163759, 4], False, 3, [1, 1, 1, 1, 1, 1, 1], False), False)  # 12
sketch6.addGeometry(Part.LineSegment(V(0.15389, -5.630065, 0), V(0.248886, -5.63218, 0)), False)  # 13
sketch6.addGeometry(Part.BSplineCurve([V(0.248886, -5.63218, 0), V(0.211585, -5.07737, 0), V(0.137463, -3.974866, 0), V(0.116695, -2.870072, 0), V(0.106378, -2.321241, 0)], [4, 1, 4], [0, 1.006455431, 2], False, 3, [1, 1, 1, 1, 1], False), False)  # 14
sketch6.addGeometry(Part.LineSegment(V(0.106378, -2.321241, 0), V(0.108141, 2.219484, 0)), False)  # 15
sketch6.addGeometry(Part.LineSegment(V(0.108141, 2.219484, 0), V(-3.949987, 2.219484, 0)), False)  # 16
sketch6.addGeometry(Part.LineSegment(V(-3.949987, 2.219484, 0), V(-3.949987, 2.171164, 0)), False)  # 17
sketch6.addConstraint([
    Sketcher.Constraint("Block", 12),
    Sketcher.Constraint("Block", 14),
    Sketcher.Constraint("Coincident", 11, 2, 12, 1),
    Sketcher.Constraint("Coincident", 12, 2, 13, 1),
    Sketcher.Constraint("Coincident", 13, 2, 14, 1),
    Sketcher.Constraint("Coincident", 14, 2, 15, 1),
    Sketcher.Constraint("Coincident", 15, 2, 16, 1),
    Sketcher.Constraint("Coincident", 16, 2, 17, 1),
    Sketcher.Constraint("Coincident", 17, 2, 11, 1),
    Sketcher.Constraint("Vertical", 0),
    Sketcher.Constraint("Horizontal", 1),
    Sketcher.Constraint("Vertical", 2),
    Sketcher.Constraint("Horizontal", 3),
    Sketcher.Constraint("Vertical", 5),
    Sketcher.Constraint("Horizontal", 6),
    Sketcher.Constraint("Vertical", 7),
    Sketcher.Constraint("Horizontal", 8),
    Sketcher.Constraint("Vertical", 9),
    Sketcher.Constraint("Horizontal", 10),
    Sketcher.Constraint("Horizontal", 16),
    Sketcher.Constraint("Vertical", 17),
    Sketcher.Constraint("Horizontal", 6, 2, 9, 2),
    Sketcher.Constraint("Horizontal", 1, 2, 15, 2),
    Sketcher.Constraint("Vertical", 2, 2, 8, 2),
    Sketcher.Constraint("Vertical", 7, 2, 15, 2),
    Sketcher.Constraint("DistanceX", 16, 2, 16, 1, 4.058128),
    Sketcher.Constraint("DistanceY", 0, 2, 0, 1, 2.579189),
    Sketcher.Constraint("DistanceY", 2, 2, 2, 1, 10.854209),
    Sketcher.Constraint("DistanceY", 7, 1, 7, 2, 4.386532),
    Sketcher.Constraint("DistanceY", 17, 2, 17, 1, 0.04832),
    Sketcher.Constraint("DistanceY", 4, 2, 7, 2, 6.597399),
    Sketcher.Constraint("Distance", 4, 12.944412),
    Sketcher.Constraint("Distance", 11, 5.277439),
    Sketcher.Constraint("DistanceX", 1, 2, 1, 1, 2.040793),
    Sketcher.Constraint("DistanceX", 3, 2, 3, 1, 3.917384),
    Sketcher.Constraint("DistanceX", 6, 1, 6, 2, 7.154504),
    Sketcher.Constraint("DistanceX", 3, 2, -1, 1, 0.59558),
])
pad4 = body.newObject("PartDesign::Pad", "Pad003")
pad4.Profile = sketch6
pad4.Length = 0.2
pad4.Reversed = True

# Sketch on XZ plane
sketch7 = body.newObject("Sketcher::SketchObject", "Sketch006")
sketch7.AttachmentSupport = (doc.getObject("XZ_Plane"), [""])
sketch7.MapMode = "FlatFace"
sketch7.AttachmentOffset = App.Placement(V(0, 0, -3.8), App.Rotation())
sketch7.addGeometry([
    Part.Circle(V(-16.1, -17.8, 0), V(0, 0, 1), 2.3),
    Part.Circle(V(16.1, -17.8, 0), V(0, 0, 1), 2.9),
    Part.Circle(V(16.1, 17.8, 0), V(0, 0, 1), 2.6),
    Part.Circle(V(-16.1, 17.8, 0), V(0, 0, 1), 2.8),
], False)
sketch7.addConstraint([
    Sketcher.Constraint("Symmetric", 0, 3, 2, 3, -1, 1),
    Sketcher.Constraint("Symmetric", 1, 3, 3, 3, -1, 1),
    Sketcher.Constraint("Symmetric", 0, 3, 1, 3, -2),
    Sketcher.Constraint("DistanceX", 0, 3, 1, 3, 32.3),
    Sketcher.Constraint("Diameter", 0, 4.561111),
    Sketcher.Constraint("Diameter", 1, 5.869588),
    Sketcher.Constraint("Diameter", 2, 5.261612),
    Sketcher.Constraint("Diameter", 3, 5.69642),
    Sketcher.Constraint("DistanceY", 1, 3, 2, 3, 35.53),
])
pad5 = body.newObject("PartDesign::Pad", "Pad004")
pad5.Profile = sketch7
pad5.Length = 0.2
pad5.Reversed = True

doc.recompute()
